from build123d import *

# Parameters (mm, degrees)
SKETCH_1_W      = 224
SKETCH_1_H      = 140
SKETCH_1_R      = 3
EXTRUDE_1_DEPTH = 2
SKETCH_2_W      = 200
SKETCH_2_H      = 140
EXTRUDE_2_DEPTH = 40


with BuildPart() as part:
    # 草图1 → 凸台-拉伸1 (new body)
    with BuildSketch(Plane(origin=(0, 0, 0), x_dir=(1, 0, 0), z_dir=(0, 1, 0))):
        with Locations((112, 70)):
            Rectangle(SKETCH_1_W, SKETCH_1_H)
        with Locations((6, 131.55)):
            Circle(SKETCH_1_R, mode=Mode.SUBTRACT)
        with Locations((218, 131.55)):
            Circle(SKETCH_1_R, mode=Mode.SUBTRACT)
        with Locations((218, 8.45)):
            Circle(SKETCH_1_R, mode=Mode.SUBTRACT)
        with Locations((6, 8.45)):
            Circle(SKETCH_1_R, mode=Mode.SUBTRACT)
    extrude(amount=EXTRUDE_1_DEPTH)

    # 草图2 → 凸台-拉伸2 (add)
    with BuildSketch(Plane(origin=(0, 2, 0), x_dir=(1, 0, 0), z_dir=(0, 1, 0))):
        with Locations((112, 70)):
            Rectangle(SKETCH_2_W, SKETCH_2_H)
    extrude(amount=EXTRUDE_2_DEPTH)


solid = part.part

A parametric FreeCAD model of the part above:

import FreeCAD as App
import Part
import Sketcher

doc = App.newDocument("Part")
body = doc.addObject("PartDesign::Body", "Body")

sketch1 = body.newObject("Sketcher::SketchObject", "Sketch")
sketch1.AttachmentSupport = (doc.getObject("XZ_Plane"), [""])
sketch1.MapMode = "FlatFace"
sketch1.addGeometry(Part.LineSegment(App.Vector(0, -140, 0), App.Vector(0, 0, 0)), False)
sketch1.addGeometry(Part.LineSegment(App.Vector(0, 0, 0), App.Vector(224, 0, 0)), False)
sketch1.addGeometry(Part.LineSegment(App.Vector(224, 0, 0), App.Vector(224, -140, 0)), False)
sketch1.addGeometry(Part.LineSegment(App.Vector(224, -140, 0), App.Vector(0, -140, 0)), False)
sketch1.addGeometry(Part.Circle(App.Vector(6, -8.45, 0), App.Vector(0, 0, 1), 3), False)
sketch1.addGeometry(Part.Circle(App.Vector(218, -8.45, 0), App.Vector(0, 0, 1), 3), False)
sketch1.addGeometry(Part.Circle(App.Vector(6, -131.55, 0), App.Vector(0, 0, 1), 3), False)
sketch1.addGeometry(Part.Circle(App.Vector(218, -131.55, 0), App.Vector(0, 0, 1), 3), False)
sketch1.addConstraint(Sketcher.Constraint("Coincident", 0, 2, 1, 1))
sketch1.addConstraint(Sketcher.Constraint("Coincident", 1, 2, 2, 1))
sketch1.addConstraint(Sketcher.Constraint("Coincident", 2, 2, 3, 1))
sketch1.addConstraint(Sketcher.Constraint("Coincident", 3, 2, 0, 1))
sketch1.addConstraint(Sketcher.Constraint("Vertical", 0))
sketch1.addConstraint(Sketcher.Constraint("Horizontal", 1))
sketch1.addConstraint(Sketcher.Constraint("Vertical", 2))
sketch1.addConstraint(Sketcher.Constraint("Horizontal", 3))
sketch1.addConstraint(Sketcher.Constraint("Coincident", 0, 2, -1, 1))
sketch1.addConstraint(Sketcher.Constraint("Equal", 4, 5))
sketch1.addConstraint(Sketcher.Constraint("Equal", 5, 6))
sketch1.addConstraint(Sketcher.Constraint("Equal", 6, 7))
sketch1.addConstraint(Sketcher.Constraint("Horizontal", 4, 3, 5, 3))
sketch1.addConstraint(Sketcher.Constraint("Horizontal", 6, 3, 7, 3))
sketch1.addConstraint(Sketcher.Constraint("Vertical", 4, 3, 6, 3))
sketch1.addConstraint(Sketcher.Constraint("Vertical", 5, 3, 7, 3))
sketch1.addConstraint(Sketcher.Constraint("Diameter", 4, 6.0))
sketch1.addConstraint(Sketcher.Constraint("DistanceX", 1, 1, 1, 2, 224.0))
sketch1.addConstraint(Sketcher.Constraint("DistanceY", 0, 1, 0, 2, 140.0))
sketch1.addConstraint(Sketcher.Constraint("DistanceX", -1, 1, 4, 3, 6.0))
sketch1.addConstraint(Sketcher.Constraint("DistanceX", -1, 1, 5, 3, 218.0))
sketch1.addConstraint(Sketcher.Constraint("DistanceY", 6, 3, 4, 3, 123.1))
sketch1.addConstraint(Sketcher.Constraint("DistanceY", 4, 3, -1, 1, 8.45))
pad1 = body.newObject("PartDesign::Pad", "Pad")
pad1.Profile = sketch1
pad1.Length = 2
pad1.Reversed = True

sketch2 = body.newObject("Sketcher::SketchObject", "Sketch001")
sketch2.AttachmentSupport = (doc.getObject("XZ_Plane"), [""])
sketch2.MapMode = "FlatFace"
sketch2.AttachmentOffset = App.Placement(App.Vector(0, 0, -2), App.Rotation())
sketch2.addGeometry(Part.LineSegment(App.Vector(12, -140, 0), App.Vector(12, 0, 0)), False)
sketch2.addGeometry(Part.LineSegment(App.Vector(12, 0, 0), App.Vector(212, 0, 0)), False)
sketch2.addGeometry(Part.LineSegment(App.Vector(212, 0, 0), App.Vector(212, -140, 0)), False)
sketch2.addGeometry(Part.LineSegment(App.Vector(212, -140, 0), App.Vector(12, -140, 0)), False)
sketch2.addConstraint(Sketcher.Constraint("Coincident", 0, 2, 1, 1))
sketch2.addConstraint(Sketcher.Constraint("Coincident", 1, 2, 2, 1))
sketch2.addConstraint(Sketcher.Constraint("Coincident", 2, 2, 3, 1))
sketch2.addConstraint(Sketcher.Constraint("Coincident", 3, 2, 0, 1))
sketch2.addConstraint(Sketcher.Constraint("Vertical", 0))
sketch2.addConstraint(Sketcher.Constraint("Horizontal", 1))
sketch2.addConstraint(Sketcher.Constraint("Vertical", 2))
sketch2.addConstraint(Sketcher.Constraint("Horizontal", 3))
sketch2.addConstraint(Sketcher.Constraint("PointOnObject", 0, 2, -1))
sketch2.addConstraint(Sketcher.Constraint("DistanceX", 1, 1, 1, 2, 200.0))
sketch2.addConstraint(Sketcher.Constraint("DistanceY", 0, 1, 0, 2, 140.0))
sketch2.addConstraint(Sketcher.Constraint("DistanceX", -1, 1, 0, 2, 12.0))
pad2 = body.newObject("PartDesign::Pad", "Pad001")
pad2.Profile = sketch2
pad2.Length = 40
pad2.Reversed = True

doc.recompute()
